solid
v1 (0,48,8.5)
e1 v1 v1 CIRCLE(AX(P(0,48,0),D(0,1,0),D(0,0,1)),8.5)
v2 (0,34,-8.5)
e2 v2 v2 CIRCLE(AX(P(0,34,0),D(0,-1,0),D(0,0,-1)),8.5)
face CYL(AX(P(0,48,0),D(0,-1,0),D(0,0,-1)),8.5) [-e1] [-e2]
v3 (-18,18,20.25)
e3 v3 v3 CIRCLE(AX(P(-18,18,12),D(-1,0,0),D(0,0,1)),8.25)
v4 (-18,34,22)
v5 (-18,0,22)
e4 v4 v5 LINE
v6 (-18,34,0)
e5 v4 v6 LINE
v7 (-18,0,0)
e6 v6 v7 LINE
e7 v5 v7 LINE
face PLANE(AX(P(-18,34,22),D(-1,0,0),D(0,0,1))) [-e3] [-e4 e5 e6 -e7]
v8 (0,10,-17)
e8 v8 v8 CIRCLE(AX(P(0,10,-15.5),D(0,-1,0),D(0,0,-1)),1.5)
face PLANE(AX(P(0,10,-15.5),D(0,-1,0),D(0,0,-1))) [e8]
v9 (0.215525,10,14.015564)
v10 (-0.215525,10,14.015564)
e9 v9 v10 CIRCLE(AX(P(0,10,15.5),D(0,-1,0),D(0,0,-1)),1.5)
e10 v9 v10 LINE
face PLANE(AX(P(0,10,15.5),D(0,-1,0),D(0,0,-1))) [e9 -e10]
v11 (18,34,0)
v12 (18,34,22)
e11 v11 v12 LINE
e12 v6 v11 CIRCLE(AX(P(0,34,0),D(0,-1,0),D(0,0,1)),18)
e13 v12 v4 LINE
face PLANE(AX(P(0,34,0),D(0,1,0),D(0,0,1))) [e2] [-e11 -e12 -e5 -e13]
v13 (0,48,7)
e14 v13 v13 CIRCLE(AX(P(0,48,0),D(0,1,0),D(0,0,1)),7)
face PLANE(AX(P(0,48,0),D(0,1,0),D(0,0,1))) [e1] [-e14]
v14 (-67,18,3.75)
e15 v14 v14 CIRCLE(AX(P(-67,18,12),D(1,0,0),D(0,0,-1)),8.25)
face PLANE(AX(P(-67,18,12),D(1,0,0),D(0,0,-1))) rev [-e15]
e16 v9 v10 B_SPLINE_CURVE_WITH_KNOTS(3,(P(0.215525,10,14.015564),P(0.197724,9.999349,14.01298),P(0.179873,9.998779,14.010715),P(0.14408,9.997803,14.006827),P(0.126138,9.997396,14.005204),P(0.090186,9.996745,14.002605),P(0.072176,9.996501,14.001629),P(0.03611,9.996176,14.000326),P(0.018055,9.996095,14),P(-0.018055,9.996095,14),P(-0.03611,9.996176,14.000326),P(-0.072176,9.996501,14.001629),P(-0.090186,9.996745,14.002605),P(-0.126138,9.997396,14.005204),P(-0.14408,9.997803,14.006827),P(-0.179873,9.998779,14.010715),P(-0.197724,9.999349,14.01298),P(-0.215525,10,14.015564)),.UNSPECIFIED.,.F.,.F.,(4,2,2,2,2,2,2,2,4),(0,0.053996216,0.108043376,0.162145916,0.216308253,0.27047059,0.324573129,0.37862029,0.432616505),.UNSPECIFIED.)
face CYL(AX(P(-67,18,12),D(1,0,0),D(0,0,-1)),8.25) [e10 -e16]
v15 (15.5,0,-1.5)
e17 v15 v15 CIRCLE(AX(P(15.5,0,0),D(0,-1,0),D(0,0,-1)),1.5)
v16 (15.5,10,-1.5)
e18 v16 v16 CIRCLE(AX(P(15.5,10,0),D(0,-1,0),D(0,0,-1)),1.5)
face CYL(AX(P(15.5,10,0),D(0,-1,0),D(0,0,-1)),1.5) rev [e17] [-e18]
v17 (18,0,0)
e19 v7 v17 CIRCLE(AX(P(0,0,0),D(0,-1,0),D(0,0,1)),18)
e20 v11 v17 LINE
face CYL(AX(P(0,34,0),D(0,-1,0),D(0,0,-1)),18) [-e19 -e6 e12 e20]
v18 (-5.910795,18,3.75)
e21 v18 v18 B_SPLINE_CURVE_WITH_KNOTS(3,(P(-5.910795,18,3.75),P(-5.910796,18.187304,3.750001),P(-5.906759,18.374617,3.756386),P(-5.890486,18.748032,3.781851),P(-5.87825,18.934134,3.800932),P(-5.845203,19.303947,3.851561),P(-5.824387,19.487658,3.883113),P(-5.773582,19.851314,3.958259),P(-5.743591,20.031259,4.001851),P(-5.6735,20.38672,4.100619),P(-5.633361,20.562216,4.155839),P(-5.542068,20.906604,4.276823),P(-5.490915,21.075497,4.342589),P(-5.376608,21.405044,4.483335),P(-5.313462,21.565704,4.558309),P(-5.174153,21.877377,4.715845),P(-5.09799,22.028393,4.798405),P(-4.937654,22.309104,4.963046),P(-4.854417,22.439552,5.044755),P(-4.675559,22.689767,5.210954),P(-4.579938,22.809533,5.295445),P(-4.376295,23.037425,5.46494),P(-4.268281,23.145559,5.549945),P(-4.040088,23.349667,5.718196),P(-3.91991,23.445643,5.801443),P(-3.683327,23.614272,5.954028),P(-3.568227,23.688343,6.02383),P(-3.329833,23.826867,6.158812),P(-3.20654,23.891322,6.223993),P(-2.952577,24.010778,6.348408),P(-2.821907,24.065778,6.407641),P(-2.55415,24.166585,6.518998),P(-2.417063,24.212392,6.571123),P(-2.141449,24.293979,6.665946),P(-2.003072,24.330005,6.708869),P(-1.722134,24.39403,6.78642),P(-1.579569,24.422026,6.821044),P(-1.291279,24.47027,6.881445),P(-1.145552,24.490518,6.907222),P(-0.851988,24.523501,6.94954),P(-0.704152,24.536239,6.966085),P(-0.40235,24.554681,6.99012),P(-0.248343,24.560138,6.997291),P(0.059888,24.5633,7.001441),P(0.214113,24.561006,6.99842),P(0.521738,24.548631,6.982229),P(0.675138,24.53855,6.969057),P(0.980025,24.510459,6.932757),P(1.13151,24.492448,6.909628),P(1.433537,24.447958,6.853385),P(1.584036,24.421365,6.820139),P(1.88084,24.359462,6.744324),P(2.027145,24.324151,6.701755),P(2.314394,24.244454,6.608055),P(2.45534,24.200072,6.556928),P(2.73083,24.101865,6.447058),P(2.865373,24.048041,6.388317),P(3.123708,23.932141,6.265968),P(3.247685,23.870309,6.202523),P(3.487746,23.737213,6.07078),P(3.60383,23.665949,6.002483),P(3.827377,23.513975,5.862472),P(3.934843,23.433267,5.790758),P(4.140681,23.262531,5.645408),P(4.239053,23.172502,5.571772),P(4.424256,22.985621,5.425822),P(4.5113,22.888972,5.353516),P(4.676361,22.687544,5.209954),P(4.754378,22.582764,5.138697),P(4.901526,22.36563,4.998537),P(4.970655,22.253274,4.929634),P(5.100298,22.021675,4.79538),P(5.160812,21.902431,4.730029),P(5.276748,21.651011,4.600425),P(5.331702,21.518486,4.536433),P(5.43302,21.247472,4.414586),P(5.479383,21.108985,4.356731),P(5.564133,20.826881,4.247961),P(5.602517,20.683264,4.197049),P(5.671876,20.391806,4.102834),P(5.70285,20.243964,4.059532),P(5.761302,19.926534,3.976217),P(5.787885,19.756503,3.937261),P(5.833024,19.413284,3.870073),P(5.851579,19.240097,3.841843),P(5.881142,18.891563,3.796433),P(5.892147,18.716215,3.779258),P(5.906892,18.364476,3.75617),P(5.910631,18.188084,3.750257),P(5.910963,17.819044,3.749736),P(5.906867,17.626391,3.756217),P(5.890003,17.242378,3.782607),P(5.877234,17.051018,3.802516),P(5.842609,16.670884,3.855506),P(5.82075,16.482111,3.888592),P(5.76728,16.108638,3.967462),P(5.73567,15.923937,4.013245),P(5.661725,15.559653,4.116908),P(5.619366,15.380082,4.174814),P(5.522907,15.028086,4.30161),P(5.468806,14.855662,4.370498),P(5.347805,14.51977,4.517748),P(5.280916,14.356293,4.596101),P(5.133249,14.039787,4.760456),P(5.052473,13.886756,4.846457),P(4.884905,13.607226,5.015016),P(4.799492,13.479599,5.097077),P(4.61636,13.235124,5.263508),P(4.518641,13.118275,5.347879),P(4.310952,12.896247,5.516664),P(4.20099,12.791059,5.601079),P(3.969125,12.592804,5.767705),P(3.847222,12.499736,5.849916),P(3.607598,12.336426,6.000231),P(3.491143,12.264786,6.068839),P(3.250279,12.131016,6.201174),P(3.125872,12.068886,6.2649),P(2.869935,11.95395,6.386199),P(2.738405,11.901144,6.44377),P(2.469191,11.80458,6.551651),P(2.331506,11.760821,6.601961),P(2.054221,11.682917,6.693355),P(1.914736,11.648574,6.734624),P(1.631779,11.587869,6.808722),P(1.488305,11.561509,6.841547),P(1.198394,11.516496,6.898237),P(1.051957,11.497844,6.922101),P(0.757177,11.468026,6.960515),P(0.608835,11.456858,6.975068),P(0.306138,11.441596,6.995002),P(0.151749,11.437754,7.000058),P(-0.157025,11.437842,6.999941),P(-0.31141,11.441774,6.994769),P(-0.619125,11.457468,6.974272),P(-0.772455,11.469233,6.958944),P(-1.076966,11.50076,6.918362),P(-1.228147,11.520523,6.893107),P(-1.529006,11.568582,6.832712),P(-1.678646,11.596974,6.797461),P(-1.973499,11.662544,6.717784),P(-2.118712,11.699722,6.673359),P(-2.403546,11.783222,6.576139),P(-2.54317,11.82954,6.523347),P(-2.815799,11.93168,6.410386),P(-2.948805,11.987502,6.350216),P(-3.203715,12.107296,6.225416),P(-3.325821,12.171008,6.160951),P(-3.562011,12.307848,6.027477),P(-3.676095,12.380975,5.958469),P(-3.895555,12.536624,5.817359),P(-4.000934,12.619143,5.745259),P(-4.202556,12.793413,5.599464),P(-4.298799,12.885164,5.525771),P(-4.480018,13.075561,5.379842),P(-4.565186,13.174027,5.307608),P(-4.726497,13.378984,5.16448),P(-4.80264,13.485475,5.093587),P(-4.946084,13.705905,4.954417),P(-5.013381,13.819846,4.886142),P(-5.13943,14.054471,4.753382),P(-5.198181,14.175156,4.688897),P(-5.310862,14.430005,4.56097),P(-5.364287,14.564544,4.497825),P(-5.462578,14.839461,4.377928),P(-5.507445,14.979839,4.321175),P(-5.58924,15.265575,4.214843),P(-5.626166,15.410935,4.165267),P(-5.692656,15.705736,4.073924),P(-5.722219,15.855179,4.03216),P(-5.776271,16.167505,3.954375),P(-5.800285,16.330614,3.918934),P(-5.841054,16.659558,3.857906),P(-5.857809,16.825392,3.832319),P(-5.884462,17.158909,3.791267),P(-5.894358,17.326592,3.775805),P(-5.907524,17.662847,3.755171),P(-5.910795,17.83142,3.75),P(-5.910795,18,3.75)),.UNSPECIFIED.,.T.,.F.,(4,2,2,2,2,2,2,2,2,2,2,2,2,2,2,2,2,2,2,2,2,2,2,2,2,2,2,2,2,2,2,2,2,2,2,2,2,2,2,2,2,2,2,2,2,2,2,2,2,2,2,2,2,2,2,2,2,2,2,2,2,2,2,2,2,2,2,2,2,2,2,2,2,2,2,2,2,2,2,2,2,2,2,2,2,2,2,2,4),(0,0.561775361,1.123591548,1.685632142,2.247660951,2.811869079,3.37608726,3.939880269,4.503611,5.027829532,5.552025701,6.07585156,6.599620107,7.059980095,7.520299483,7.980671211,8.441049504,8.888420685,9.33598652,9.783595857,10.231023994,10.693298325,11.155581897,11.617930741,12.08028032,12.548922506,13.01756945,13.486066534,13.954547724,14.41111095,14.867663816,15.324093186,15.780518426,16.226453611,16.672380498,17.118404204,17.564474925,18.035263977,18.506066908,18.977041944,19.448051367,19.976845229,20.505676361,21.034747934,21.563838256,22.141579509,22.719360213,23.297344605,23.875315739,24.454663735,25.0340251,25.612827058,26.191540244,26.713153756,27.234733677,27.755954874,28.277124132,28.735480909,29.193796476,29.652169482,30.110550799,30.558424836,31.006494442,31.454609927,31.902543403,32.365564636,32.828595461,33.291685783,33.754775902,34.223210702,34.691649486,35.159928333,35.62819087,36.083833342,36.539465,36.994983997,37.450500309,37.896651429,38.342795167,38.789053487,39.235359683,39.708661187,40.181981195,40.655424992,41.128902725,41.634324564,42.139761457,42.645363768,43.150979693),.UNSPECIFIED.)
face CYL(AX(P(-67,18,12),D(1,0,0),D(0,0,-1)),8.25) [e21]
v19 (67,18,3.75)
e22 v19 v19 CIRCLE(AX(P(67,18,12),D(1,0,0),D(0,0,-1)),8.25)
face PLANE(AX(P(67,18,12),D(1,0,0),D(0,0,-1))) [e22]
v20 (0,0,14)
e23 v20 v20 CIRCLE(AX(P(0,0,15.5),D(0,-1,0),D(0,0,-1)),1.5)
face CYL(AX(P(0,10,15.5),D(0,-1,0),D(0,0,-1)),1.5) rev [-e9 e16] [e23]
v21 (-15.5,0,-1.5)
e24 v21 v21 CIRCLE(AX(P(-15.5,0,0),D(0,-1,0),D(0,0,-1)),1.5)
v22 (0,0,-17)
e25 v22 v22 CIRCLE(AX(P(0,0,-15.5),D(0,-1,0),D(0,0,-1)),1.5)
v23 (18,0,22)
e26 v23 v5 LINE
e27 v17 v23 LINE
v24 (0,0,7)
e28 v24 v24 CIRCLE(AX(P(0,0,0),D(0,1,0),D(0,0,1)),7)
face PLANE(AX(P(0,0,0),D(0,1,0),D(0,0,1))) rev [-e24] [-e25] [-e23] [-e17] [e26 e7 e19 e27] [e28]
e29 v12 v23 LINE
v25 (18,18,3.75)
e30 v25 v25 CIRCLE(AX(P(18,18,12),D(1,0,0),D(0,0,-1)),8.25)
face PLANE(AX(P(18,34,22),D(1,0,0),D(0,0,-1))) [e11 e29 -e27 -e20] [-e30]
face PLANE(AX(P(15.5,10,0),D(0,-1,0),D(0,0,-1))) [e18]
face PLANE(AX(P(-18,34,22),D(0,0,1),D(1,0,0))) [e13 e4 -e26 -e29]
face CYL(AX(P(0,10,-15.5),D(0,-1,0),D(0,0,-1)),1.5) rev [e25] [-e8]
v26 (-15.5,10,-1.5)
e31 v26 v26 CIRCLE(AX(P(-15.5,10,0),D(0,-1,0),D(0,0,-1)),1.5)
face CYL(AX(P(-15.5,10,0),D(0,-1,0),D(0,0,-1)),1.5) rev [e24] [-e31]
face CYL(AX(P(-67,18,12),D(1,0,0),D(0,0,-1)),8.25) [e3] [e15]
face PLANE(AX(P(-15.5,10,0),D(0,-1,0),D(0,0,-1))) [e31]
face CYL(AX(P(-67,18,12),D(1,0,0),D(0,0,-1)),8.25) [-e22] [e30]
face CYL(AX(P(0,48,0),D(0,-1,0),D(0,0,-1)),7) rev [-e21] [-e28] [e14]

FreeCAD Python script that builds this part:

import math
import FreeCAD as App
import Part
import Sketcher
from FreeCAD import Vector
Q = App.Units.Quantity

doc = App.newDocument("Part")
body = doc.addObject("PartDesign::Body", "Body")

sketch1 = body.newObject("Sketcher::SketchObject", "Sketch")
sketch1.AttachmentSupport = (doc.getObject("XZ_Plane"), [""])
sketch1.MapMode = "FlatFace"
sketch1.addGeometry([
    Part.Circle(Vector(0, 0, 0), Vector(0, 0, 1), 8),
    Part.Circle(Vector(0, 0, 0), Vector(0, 0, 1), 7),
], False)
sketch1.addConstraint([
    Sketcher.Constraint("Coincident", 0, 3, -1, 1),
    Sketcher.Constraint("Coincident", 1, 3, -1, 1),
    Sketcher.Constraint("Diameter", 0, Q("17 mm")),
    Sketcher.Constraint("Diameter", 1, Q("14 mm")),
])
pad1 = body.newObject("PartDesign::Pad", "Pad")
pad1.Profile = sketch1
pad1.Length = 48
pad1.Reversed = True

sketch2 = body.newObject("Sketcher::SketchObject", "Sketch001")
sketch2.AttachmentSupport = (doc.getObject("XZ_Plane"), [""])
sketch2.MapMode = "FlatFace"
sketch2.addGeometry([
    Part.LineSegment(Vector(18, 22, 0), Vector(-18, 22, 0)),
    Part.LineSegment(Vector(-18, 22, 0), Vector(-18, 0, 0)),
    Part.ArcOfCircle(Part.Circle(Vector(0, 0, 0), Vector(0, 0, 1), 18), math.radians(180), math.radians(360)),
    Part.LineSegment(Vector(18, 0, 0), Vector(18, 22, 0)),
    Part.Circle(Vector(0, 0, 0), Vector(0, 0, 1), 8),
], False)
sketch2.addConstraint([
    Sketcher.Constraint("Coincident", 0, 2, 1, 1),
    Sketcher.Constraint("Tangent", 1, 2, 2, 1),
    Sketcher.Constraint("Tangent", 2, 2, 3, 1),
    Sketcher.Constraint("Coincident", 3, 2, 0, 1),
    Sketcher.Constraint("Horizontal", 0),
    Sketcher.Constraint("Vertical", 1),
    Sketcher.Constraint("Vertical", 3),
    Sketcher.Constraint("Coincident", 2, 3, -1, 1),
    Sketcher.Constraint("Coincident", 4, 3, -1, 1),
    Sketcher.Constraint("Diameter", 4, Q("17 mm")),
    Sketcher.Constraint("Radius", 2, Q("18 mm")),
    Sketcher.Constraint("DistanceY", 1, 2, 1, 1, Q("22 mm")),
])
pad2 = body.newObject("PartDesign::Pad", "Pad001")
pad2.Profile = sketch2
pad2.Length = 34
pad2.Reversed = True

sketch3 = body.newObject("Sketcher::SketchObject", "Sketch002")
sketch3.AttachmentSupport = (doc.getObject("XZ_Plane"), [""])
sketch3.MapMode = "FlatFace"
sketch3.addGeometry([
    Part.Circle(Vector(0, -15.5, 0), Vector(0, 0, 1), 1.5),
    Part.Circle(Vector(-15.5, 0, 0), Vector(0, 0, 1), 1.5),
    Part.Circle(Vector(0, 15.5, 0), Vector(0, 0, 1), 1.5),
    Part.Circle(Vector(15.5, 0, 0), Vector(0, 0, 1), 1.5),
], False)
sketch3.addConstraint([
    Sketcher.Constraint("Equal", 0, 1),
    Sketcher.Constraint("Equal", 1, 2),
    Sketcher.Constraint("Equal", 2, 3),
    Sketcher.Constraint("Symmetric", 0, 3, 2, 3, -1, 1),
    Sketcher.Constraint("Symmetric", 1, 3, 3, 3, -1, 1),
    Sketcher.Constraint("PointOnObject", 0, 3, -2),
    Sketcher.Constraint("PointOnObject", 1, 3, -1),
    Sketcher.Constraint("Diameter", 0, Q("3 mm")),
    Sketcher.Constraint("DistanceY", 0, 3, 2, 3, Q("31 mm")),
    Sketcher.Constraint("DistanceX", 1, 3, 3, 3, Q("31 mm")),
])
pocket1 = body.newObject("PartDesign::Pocket", "Pocket")
pocket1.Profile = sketch3
pocket1.Length = 10

sketch4 = body.newObject("Sketcher::SketchObject", "Sketch003")
sketch4.AttachmentSupport = (doc.getObject("YZ_Plane"), [""])
sketch4.MapMode = "FlatFace"
sketch4.addGeometry(Part.Circle(Vector(18, 12, 0), Vector(0, 0, 1), 8), False)
sketch4.addConstraint([
    Sketcher.Constraint("Diameter", 0, Q("16.5 mm")),
    Sketcher.Constraint("DistanceX", -1, 1, 0, 3, Q("18 mm")),
    Sketcher.Constraint("DistanceY", -1, 1, 0, 3, Q("12 mm")),
])
pad3 = body.newObject("PartDesign::Pad", "Pad002")
pad3.Profile = sketch4
pad3.Type = "TwoLengths"
pad3.Length = 67
pad3.Length2 = 67

doc.recompute()
